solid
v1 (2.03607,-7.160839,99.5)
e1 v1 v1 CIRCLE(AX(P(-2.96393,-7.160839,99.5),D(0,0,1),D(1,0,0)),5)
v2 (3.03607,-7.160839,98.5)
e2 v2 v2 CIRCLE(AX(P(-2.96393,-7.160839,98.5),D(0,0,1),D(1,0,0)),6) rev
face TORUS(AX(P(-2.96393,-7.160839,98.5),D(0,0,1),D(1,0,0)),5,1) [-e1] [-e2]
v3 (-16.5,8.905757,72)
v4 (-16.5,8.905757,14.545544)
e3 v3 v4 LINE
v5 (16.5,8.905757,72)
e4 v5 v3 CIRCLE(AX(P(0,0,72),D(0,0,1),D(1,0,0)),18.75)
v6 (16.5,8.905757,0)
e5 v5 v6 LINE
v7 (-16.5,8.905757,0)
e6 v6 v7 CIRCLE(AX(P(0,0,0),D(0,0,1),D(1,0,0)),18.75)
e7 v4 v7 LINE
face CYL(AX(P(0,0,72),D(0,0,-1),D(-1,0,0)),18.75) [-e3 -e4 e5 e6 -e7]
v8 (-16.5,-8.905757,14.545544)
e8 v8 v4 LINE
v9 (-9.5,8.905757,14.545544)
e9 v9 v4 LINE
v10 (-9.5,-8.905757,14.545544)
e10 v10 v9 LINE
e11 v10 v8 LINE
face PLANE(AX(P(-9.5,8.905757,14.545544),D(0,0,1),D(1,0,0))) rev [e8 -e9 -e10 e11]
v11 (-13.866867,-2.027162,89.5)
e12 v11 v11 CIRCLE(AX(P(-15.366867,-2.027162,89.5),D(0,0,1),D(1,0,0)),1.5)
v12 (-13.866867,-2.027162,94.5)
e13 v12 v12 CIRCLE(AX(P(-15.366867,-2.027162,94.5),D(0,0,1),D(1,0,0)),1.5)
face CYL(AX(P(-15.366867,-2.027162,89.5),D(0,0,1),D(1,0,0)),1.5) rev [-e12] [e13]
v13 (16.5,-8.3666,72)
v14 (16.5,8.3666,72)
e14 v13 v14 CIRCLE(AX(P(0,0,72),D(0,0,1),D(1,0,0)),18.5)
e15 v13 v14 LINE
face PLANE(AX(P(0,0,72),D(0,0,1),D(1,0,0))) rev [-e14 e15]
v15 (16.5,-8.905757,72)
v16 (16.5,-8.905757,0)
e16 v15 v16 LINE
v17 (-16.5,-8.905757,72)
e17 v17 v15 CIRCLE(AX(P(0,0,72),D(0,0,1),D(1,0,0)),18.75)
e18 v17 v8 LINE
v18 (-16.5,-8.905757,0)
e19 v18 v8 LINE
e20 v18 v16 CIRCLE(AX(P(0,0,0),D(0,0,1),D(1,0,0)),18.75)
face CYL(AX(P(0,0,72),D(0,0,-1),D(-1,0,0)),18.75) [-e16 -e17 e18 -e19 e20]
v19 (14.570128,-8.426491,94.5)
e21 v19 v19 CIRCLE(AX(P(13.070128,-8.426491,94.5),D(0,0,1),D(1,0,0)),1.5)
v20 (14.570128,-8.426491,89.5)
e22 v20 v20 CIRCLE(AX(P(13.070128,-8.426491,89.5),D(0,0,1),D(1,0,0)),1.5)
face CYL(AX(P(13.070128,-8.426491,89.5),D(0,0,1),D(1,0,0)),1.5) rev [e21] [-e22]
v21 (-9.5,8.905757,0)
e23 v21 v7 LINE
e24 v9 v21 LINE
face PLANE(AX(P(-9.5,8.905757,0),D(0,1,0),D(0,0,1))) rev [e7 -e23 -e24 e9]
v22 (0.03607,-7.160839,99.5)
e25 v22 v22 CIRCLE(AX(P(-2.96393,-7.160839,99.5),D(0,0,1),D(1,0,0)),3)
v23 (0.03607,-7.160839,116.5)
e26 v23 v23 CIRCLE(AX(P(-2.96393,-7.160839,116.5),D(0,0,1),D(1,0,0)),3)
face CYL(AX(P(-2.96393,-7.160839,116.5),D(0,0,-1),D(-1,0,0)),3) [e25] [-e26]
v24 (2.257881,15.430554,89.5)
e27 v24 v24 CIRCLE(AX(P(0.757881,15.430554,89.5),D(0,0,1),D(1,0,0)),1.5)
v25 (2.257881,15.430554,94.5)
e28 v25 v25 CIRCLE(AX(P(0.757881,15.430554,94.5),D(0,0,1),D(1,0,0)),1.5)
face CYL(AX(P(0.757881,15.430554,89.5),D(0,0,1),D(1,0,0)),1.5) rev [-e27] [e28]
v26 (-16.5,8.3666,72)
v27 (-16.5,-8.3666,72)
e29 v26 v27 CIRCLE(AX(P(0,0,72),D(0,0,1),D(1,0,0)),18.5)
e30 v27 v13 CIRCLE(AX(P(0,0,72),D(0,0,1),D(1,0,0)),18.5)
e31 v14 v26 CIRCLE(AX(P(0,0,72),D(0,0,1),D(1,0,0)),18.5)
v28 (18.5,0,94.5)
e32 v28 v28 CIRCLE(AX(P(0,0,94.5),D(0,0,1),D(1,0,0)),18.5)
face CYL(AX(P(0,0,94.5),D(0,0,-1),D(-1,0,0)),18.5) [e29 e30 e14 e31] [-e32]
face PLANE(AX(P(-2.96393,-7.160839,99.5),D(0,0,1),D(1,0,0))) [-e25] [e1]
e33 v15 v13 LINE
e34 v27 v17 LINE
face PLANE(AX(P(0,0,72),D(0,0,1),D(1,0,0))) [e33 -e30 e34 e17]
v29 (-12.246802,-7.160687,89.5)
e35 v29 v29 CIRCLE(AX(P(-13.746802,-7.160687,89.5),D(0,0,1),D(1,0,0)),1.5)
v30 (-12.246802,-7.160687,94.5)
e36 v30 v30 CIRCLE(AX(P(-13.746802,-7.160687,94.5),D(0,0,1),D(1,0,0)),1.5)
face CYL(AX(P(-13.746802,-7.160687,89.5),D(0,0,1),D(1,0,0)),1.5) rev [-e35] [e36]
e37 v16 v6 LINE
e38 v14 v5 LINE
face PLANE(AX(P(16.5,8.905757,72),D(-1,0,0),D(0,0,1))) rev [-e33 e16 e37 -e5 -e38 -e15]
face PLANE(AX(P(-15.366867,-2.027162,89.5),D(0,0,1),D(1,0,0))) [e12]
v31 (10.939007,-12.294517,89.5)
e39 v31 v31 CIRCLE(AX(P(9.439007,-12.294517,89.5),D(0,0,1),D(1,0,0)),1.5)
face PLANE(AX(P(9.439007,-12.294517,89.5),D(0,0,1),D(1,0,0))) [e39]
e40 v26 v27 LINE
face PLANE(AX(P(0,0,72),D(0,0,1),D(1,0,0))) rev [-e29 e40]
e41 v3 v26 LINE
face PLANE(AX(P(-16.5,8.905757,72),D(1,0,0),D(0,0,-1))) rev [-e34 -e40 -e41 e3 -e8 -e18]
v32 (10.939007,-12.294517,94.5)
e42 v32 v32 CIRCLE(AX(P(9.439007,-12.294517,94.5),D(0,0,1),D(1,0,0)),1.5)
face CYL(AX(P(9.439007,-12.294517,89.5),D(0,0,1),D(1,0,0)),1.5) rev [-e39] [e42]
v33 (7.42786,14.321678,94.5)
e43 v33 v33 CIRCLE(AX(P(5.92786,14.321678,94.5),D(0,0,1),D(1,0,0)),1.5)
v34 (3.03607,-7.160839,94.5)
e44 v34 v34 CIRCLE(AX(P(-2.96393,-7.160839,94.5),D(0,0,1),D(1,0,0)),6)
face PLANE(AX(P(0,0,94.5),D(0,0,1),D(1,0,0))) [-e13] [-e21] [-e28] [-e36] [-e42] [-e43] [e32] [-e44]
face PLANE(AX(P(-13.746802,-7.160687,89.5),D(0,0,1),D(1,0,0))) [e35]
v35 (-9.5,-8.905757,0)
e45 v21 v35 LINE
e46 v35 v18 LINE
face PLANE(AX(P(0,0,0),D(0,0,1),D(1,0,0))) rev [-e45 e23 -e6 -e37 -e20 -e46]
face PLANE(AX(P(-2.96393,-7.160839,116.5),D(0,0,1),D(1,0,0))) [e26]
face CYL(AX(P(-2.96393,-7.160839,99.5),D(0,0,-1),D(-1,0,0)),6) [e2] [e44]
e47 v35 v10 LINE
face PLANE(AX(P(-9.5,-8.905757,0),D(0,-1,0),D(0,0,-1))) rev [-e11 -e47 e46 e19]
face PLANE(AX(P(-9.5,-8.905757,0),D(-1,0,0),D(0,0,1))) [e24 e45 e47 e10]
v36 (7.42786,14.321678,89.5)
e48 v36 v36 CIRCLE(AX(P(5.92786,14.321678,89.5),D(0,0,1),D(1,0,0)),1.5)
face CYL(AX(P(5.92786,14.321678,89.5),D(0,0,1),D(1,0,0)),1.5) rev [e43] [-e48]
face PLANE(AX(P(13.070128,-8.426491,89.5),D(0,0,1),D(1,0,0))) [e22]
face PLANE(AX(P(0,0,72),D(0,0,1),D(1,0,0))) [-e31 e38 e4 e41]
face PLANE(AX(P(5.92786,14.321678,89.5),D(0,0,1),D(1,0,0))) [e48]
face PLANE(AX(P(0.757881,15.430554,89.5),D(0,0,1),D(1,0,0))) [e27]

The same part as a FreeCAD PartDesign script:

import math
import FreeCAD as App
import Part
import Sketcher

V = App.Vector


def edges_at(feature, points):
    """Names of the edges that pass closest to the given points."""
    edges = feature.Shape.Edges
    near = lambda p: min(range(len(edges)), key=lambda i: edges[i].distToShape(Part.Vertex(*p))[0])
    return sorted({f"Edge{near(p) + 1}" for p in points})

doc = App.newDocument("Part")
params = doc.addObject("Spreadsheet::Sheet", "Params")
for row, (alias, value) in enumerate([
    ("sketch1_radius", "18.75 mm"),
    ("pad1_length", "72 mm"),
    ("sketch2_diameter", "37 mm"),
    ("pad2_length", "22.5 mm"),
    ("sketch3_diameter", "3 mm"),
    ("sketch3_diameter2", "12 mm"),
    ("pocket1_length", "5 mm"),
    ("sketch4_diameter", "12 mm"),
    ("pad3_length", "10 mm"),
    ("fillet_radius", "1 mm"),
    ("sketch5_diameter", "6 mm"),
    ("pad4_length", "17 mm"),
    ("pocket2_length", "7 mm"),
], start=1):
    params.set(f"A{row}", alias)
    params.set(f"B{row}", "=" + value)
    params.setAlias(f"B{row}", alias)

body = doc.addObject("PartDesign::Body", "Body")

# Sketch on XY plane
sketch1 = doc.addObject("Sketcher::SketchObject", "Sketch")
body.addObject(sketch1)
sketch1.AttachmentSupport = (doc.XY_Plane, [""])
sketch1.MapMode = "FlatFace"
sketch1.addGeometry([
    Part.LineSegment(V(-16.5, 8.905757, 0), V(-16.5, -8.905757, 0)),
    Part.ArcOfCircle(Part.Circle(V(0, 0, 0), V(0, 0, 1), 18.75), math.radians(-151.642363), math.radians(-28.357637)),
    Part.LineSegment(V(16.5, -8.905757, 0), V(16.5, 8.905757, 0)),
    Part.ArcOfCircle(Part.Circle(V(0, 0, 0), V(0, 0, 1), 18.75), math.radians(28.357637), math.radians(151.642363)),
], False)
sketch1.addConstraint([
    Sketcher.Constraint("Coincident", 0, 2, 1, 1),
    Sketcher.Constraint("Coincident", 1, 2, 2, 1),
    Sketcher.Constraint("Coincident", 2, 2, 3, 1),
    Sketcher.Constraint("Coincident", 3, 2, 0, 1),
    Sketcher.Constraint("Vertical", 0),
    Sketcher.Constraint("Vertical", 2),
    Sketcher.Constraint("Coincident", 1, 3, -1, 1),
    Sketcher.Constraint("Coincident", 3, 3, -1, 1),
    Sketcher.Constraint("Equal", 1, 3),
    Sketcher.Constraint("Horizontal", 0, 2, 1, 2),
    Sketcher.Constraint("Radius", 1, 18.75),
    Sketcher.Constraint("DistanceX", 0, 2, 1, 2, 33.0),
])
sketch1.setExpression("Constraints[10]", "Params.sketch1_radius")
pad1 = doc.addObject("PartDesign::Pad", "Pad")
body.addObject(pad1)
pad1.Profile = sketch1
pad1.setExpression("Length", "Params.pad1_length")

# Sketch on XY plane
sketch2 = doc.addObject("Sketcher::SketchObject", "Sketch001")
body.addObject(sketch2)
sketch2.AttachmentSupport = (doc.XY_Plane, [""])
sketch2.MapMode = "FlatFace"
sketch2.AttachmentOffset = App.Placement(V(0, 0, 72), App.Rotation())
sketch2.addGeometry(Part.Circle(V(0, 0, 0), V(0, 0, 1), 18.5), False)
sketch2.addConstraint([
    Sketcher.Constraint("Coincident", 0, 3, -1, 1),
    Sketcher.Constraint("Diameter", 0, 37.0),
])
sketch2.setExpression("Constraints[1]", "Params.sketch2_diameter")
pad2 = doc.addObject("PartDesign::Pad", "Pad001")
body.addObject(pad2)
pad2.Profile = sketch2
pad2.setExpression("Length", "Params.pad2_length")

# Sketch on XY plane
sketch3 = doc.addObject("Sketcher::SketchObject", "Sketch002")
body.addObject(sketch3)
sketch3.AttachmentSupport = (doc.XY_Plane, [""])
sketch3.MapMode = "FlatFace"
sketch3.AttachmentOffset = App.Placement(V(0, 0, 94.5), App.Rotation())
sketch3.addGeometry([
    Part.Circle(V(-13.746802, -7.160687, 0), V(0, 0, 1), 1.5),  # 0
    Part.Circle(V(0.757881, 15.430554, 0), V(0, 0, 1), 1.5),  # 1
    Part.Circle(V(13.070128, -8.426491, 0), V(0, 0, 1), 1.5),  # 2
    Part.Circle(V(-15.366867, -2.027162, 0), V(0, 0, 1), 1.5),  # 3
    Part.Circle(V(5.92786, 14.321678, 0), V(0, 0, 1), 1.5),  # 4
    Part.Circle(V(9.439007, -12.294517, 0), V(0, 0, 1), 1.5),  # 5
    Part.Circle(V(-2.96393, -7.160839, 0), V(0, 0, 1), 6),  # 6
], False)
sketch3.addConstraint([
    Sketcher.Constraint("Equal", 0, 1),
    Sketcher.Constraint("Equal", 1, 2),
    Sketcher.Constraint("Equal", 2, 3),
    Sketcher.Constraint("Equal", 3, 4),
    Sketcher.Constraint("Equal", 4, 5),
    Sketcher.Constraint("Diameter", 0, 3.0),
    Sketcher.Constraint("Diameter", 6, 12.0),
    Sketcher.Constraint("DistanceX", 0, 3, -1, 1, 13.746802),
    Sketcher.Constraint("DistanceX", -1, 1, 1, 3, 0.757881),
    Sketcher.Constraint("DistanceX", -1, 1, 2, 3, 13.070128),
    Sketcher.Constraint("DistanceY", 2, 3, -1, 1, 8.426491),
    Sketcher.Constraint("DistanceY", 3, 3, -1, 1, 2.027162),
    Sketcher.Constraint("DistanceX", -1, 1, 4, 3, 5.92786),
    Sketcher.Constraint("DistanceY", -1, 1, 4, 3, 14.321678),
    Sketcher.Constraint("DistanceX", 6, 3, -1, 1, 2.96393),
    Sketcher.Constraint("DistanceY", 6, 3, -1, 1, 7.160839),
    Sketcher.Constraint("DistanceY", 0, 3, 1, 3, 22.591241),
    Sketcher.Constraint("DistanceX", 3, 3, 1, 3, 16.124749),
    Sketcher.Constraint("DistanceX", 5, 3, 2, 3, 3.631121),
    Sketcher.Constraint("DistanceY", 5, 3, 0, 3, 5.13383),
    Sketcher.Constraint("DistanceY", 0, 3, -1, 1, 7.160687),
])
sketch3.setExpression("Constraints[5]", "Params.sketch3_diameter")
sketch3.setExpression("Constraints[6]", "Params.sketch3_diameter2")
pocket1 = doc.addObject("PartDesign::Pocket", "Pocket")
body.addObject(pocket1)
pocket1.Profile = sketch3
pocket1.setExpression("Length", "Params.pocket1_length")

# Sketch on XY plane
sketch4 = doc.addObject("Sketcher::SketchObject", "Sketch003")
body.addObject(sketch4)
sketch4.AttachmentSupport = (doc.XY_Plane, [""])
sketch4.MapMode = "FlatFace"
sketch4.AttachmentOffset = App.Placement(V(0, 0, 99.5), App.Rotation())
sketch4.addGeometry(Part.Circle(V(-2.96393, -7.160839, 0), V(0, 0, 1), 6), False)
sketch4.addConstraint([
    Sketcher.Constraint("Diameter", 0, 12.0),
    Sketcher.Constraint("DistanceX", 0, 3, -1, 1, 2.96393),
    Sketcher.Constraint("DistanceY", 0, 3, -1, 1, 7.160839),
])
sketch4.setExpression("Constraints[0]", "Params.sketch4_diameter")
pad3 = doc.addObject("PartDesign::Pad", "Pad002")
body.addObject(pad3)
pad3.Profile = sketch4
pad3.setExpression("Length", "Params.pad3_length")
pad3.Reversed = True
doc.recompute()

fillet = doc.addObject("PartDesign::Fillet", "Fillet")
body.addObject(fillet)
fillet.Base = (pad3, edges_at(pad3, [(-8.964, -7.161, 99.5)]))
fillet.setExpression("Radius", "Params.fillet_radius")

# Sketch on XY plane
sketch5 = doc.addObject("Sketcher::SketchObject", "Sketch004")
body.addObject(sketch5)
sketch5.AttachmentSupport = (doc.XY_Plane, [""])
sketch5.MapMode = "FlatFace"
sketch5.AttachmentOffset = App.Placement(V(0, 0, 99.5), App.Rotation())
sketch5.addGeometry(Part.Circle(V(-2.96393, -7.160839, 0), V(0, 0, 1), 3), False)
sketch5.addConstraint([
    Sketcher.Constraint("Diameter", 0, 6.0),
    Sketcher.Constraint("DistanceX", 0, 3, -1, 1, 2.96393),
    Sketcher.Constraint("DistanceY", 0, 3, -1, 1, 7.160839),
])
sketch5.setExpression("Constraints[0]", "Params.sketch5_diameter")
pad4 = doc.addObject("PartDesign::Pad", "Pad003")
body.addObject(pad4)
pad4.Profile = sketch5
pad4.setExpression("Length", "Params.pad4_length")

# Sketch on YZ plane
sketch6 = doc.addObject("Sketcher::SketchObject", "Sketch005")
body.addObject(sketch6)
sketch6.AttachmentSupport = (doc.YZ_Plane, [""])
sketch6.MapMode = "FlatFace"
sketch6.AttachmentOffset = App.Placement(V(0, 0, -16.5), App.Rotation())
sketch6.addGeometry([
    Part.LineSegment(V(8.905757, 0, 0), V(-8.905757, 0, 0)),
    Part.LineSegment(V(-8.905757, 0, 0), V(-8.905757, 14.545544, 0)),
    Part.LineSegment(V(-8.905757, 14.545544, 0), V(8.905757, 14.545544, 0)),
    Part.LineSegment(V(8.905757, 14.545544, 0), V(8.905757, 0, 0)),
], False)
sketch6.addConstraint([
    Sketcher.Constraint("Coincident", 0, 2, 1, 1),
    Sketcher.Constraint("Coincident", 1, 2, 2, 1),
    Sketcher.Constraint("Coincident", 2, 2, 3, 1),
    Sketcher.Constraint("Coincident", 3, 2, 0, 1),
    Sketcher.Constraint("Horizontal", 0),
    Sketcher.Constraint("Vertical", 1),
    Sketcher.Constraint("Horizontal", 2),
    Sketcher.Constraint("Vertical", 3),
    Sketcher.Constraint("Symmetric", 0, 2, 3, 2, -1, 1),
    Sketcher.Constraint("DistanceX", 0, 2, 0, 1, 17.811513),
    Sketcher.Constraint("DistanceY", 1, 1, 1, 2, 14.545544),
])
pocket2 = doc.addObject("PartDesign::Pocket", "Pocket001")
body.addObject(pocket2)
pocket2.Profile = sketch6
pocket2.setExpression("Length", "Params.pocket2_length")
pocket2.Reversed = True

doc.recompute()
